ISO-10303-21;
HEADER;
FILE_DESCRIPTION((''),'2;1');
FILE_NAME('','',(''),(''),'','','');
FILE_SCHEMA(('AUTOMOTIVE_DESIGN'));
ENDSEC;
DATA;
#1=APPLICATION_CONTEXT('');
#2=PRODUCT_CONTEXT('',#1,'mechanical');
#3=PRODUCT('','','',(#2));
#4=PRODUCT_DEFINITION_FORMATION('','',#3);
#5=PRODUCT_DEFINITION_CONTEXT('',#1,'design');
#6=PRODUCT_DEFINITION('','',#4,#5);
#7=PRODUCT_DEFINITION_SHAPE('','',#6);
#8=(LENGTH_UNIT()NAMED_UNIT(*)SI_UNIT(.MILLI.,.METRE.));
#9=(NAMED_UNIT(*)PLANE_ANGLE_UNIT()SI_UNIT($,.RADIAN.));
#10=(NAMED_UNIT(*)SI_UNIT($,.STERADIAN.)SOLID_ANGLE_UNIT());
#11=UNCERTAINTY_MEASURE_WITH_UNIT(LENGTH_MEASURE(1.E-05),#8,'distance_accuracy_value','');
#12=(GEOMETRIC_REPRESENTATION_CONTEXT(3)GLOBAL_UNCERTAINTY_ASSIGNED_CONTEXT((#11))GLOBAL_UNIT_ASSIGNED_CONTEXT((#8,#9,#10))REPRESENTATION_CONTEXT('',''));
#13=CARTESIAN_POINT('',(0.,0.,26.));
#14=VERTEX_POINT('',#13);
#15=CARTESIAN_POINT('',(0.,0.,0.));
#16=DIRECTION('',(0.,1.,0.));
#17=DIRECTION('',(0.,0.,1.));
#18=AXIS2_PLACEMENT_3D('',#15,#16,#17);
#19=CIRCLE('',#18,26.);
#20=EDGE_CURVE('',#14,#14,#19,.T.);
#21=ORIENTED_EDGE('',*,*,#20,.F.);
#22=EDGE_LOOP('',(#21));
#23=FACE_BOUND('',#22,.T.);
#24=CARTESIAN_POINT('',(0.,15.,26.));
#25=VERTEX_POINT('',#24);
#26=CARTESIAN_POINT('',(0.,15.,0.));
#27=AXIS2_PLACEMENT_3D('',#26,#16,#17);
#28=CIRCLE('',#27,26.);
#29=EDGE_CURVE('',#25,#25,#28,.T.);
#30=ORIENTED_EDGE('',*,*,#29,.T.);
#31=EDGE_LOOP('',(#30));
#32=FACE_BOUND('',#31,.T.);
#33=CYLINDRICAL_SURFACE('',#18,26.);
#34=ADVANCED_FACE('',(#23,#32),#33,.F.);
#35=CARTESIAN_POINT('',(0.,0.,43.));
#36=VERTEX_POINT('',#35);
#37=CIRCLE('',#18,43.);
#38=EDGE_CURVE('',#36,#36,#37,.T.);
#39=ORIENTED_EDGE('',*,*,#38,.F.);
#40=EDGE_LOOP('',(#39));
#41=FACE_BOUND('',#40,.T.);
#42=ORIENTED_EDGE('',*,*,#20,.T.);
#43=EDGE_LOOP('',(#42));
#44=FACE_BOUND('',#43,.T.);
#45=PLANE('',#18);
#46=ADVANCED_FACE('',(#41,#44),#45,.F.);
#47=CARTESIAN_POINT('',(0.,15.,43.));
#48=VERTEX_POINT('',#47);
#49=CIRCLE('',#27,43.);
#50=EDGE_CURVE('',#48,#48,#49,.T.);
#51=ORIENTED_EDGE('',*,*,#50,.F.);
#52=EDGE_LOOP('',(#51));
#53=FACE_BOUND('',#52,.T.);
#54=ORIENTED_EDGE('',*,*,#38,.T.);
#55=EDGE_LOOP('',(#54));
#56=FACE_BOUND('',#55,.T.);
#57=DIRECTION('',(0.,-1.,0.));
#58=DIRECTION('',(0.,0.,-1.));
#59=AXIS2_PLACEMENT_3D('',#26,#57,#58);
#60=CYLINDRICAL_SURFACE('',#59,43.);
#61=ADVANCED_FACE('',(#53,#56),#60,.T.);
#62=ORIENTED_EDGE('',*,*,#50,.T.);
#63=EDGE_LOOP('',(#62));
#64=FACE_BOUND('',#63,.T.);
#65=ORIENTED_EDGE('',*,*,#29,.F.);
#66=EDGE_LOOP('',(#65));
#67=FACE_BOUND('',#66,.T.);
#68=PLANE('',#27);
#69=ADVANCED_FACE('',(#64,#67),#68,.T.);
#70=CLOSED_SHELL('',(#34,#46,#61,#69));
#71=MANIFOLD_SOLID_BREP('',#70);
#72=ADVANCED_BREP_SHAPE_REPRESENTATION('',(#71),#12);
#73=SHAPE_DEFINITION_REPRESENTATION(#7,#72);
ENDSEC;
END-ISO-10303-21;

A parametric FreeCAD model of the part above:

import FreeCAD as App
import Part
import Sketcher

V = App.Vector
Q = App.Units.Quantity

doc = App.newDocument("Part")
params = doc.addObject("Spreadsheet::Sheet", "Params")
for row, (alias, value) in enumerate([
    ("sketch1_diameter", "86 mm"),
    ("pad1_length", "15 mm"),
    ("sketch2_diameter", "52 mm"),
    ("pocket1_length", "15 mm"),
], start=1):
    params.set(f"A{row}", alias)
    params.set(f"B{row}", "=" + value)
    params.setAlias(f"B{row}", alias)

body = doc.addObject("PartDesign::Body", "Body")

# Sketch on XZ plane
sketch1 = doc.addObject("Sketcher::SketchObject", "Sketch")
body.addObject(sketch1)
sketch1.AttachmentSupport = (doc.XZ_Plane, [""])
sketch1.MapMode = "FlatFace"
sketch1.addGeometry(Part.Circle(V(0, 0, 0), V(0, 0, 1), 43), False)
sketch1.addConstraint([
    Sketcher.Constraint("Coincident", 0, 3, -1, 1),
    Sketcher.Constraint("Diameter", 0, Q("86 mm")),
])
sketch1.setExpression("Constraints[1]", "Params.sketch1_diameter")
pad1 = doc.addObject("PartDesign::Pad", "Pad")
body.addObject(pad1)
pad1.Profile = sketch1
pad1.setExpression("Length", "Params.pad1_length")
pad1.Reversed = True

# Sketch on XZ plane
sketch2 = doc.addObject("Sketcher::SketchObject", "Sketch001")
body.addObject(sketch2)
sketch2.AttachmentSupport = (doc.XZ_Plane, [""])
sketch2.MapMode = "FlatFace"
sketch2.AttachmentOffset = App.Placement(V(0, 0, -15), App.Rotation())
sketch2.addGeometry(Part.Circle(V(0, 0, 0), V(0, 0, 1), 26), False)
sketch2.addConstraint([
    Sketcher.Constraint("Coincident", 0, 3, -1, 1),
    Sketcher.Constraint("Diameter", 0, Q("52 mm")),
])
sketch2.setExpression("Constraints[1]", "Params.sketch2_diameter")
pocket1 = doc.addObject("PartDesign::Pocket", "Pocket")
body.addObject(pocket1)
pocket1.Profile = sketch2
pocket1.setExpression("Length", "Params.pocket1_length")
pocket1.Reversed = True

doc.recompute()
